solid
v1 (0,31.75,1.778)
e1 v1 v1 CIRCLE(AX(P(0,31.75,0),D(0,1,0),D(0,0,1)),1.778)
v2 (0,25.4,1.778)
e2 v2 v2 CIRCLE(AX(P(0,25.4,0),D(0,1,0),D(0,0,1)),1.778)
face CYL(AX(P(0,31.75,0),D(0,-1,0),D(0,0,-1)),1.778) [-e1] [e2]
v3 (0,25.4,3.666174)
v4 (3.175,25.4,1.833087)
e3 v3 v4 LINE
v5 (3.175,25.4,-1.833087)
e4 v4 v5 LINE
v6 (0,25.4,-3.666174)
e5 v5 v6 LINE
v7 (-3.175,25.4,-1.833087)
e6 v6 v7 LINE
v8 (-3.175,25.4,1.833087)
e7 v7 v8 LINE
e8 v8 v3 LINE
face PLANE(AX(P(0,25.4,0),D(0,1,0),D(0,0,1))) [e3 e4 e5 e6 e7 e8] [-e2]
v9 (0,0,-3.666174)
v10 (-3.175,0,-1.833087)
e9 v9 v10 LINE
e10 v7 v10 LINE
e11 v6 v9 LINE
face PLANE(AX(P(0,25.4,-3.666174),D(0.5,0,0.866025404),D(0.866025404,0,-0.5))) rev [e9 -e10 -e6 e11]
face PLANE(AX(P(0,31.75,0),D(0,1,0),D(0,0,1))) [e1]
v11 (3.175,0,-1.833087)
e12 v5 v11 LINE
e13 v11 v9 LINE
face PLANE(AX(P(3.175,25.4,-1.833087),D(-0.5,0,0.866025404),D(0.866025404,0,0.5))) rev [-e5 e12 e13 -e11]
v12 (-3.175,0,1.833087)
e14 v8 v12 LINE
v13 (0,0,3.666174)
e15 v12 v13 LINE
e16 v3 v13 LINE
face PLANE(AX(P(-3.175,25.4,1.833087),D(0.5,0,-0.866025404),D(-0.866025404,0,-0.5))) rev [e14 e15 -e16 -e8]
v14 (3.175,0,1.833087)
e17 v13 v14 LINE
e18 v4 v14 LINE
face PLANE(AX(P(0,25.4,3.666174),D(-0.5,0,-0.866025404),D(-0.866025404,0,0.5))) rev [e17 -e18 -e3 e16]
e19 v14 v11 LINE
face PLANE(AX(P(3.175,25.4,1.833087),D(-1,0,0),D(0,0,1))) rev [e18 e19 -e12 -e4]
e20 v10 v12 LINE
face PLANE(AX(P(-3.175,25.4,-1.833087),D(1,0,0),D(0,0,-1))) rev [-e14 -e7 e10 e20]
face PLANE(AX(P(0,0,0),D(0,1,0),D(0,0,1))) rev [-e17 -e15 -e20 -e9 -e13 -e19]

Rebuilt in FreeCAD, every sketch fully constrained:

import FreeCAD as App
import Part
import Sketcher

V = App.Vector
Q = App.Units.Quantity


def add_polygon(sketch, points):
    """Adds a closed chain of lines whose ends are joined by coincident constraints."""
    first, n = sketch.GeometryCount, len(points)
    for a, b in zip(points, points[1:] + points[:1]):
        sketch.addGeometry(Part.LineSegment(App.Vector(*a, 0), App.Vector(*b, 0)), False)
    for i in range(n):
        sketch.addConstraint(Sketcher.Constraint("Coincident", first + i, 2, first + (i + 1) % n, 1))

doc = App.newDocument("Part")
body = doc.addObject("PartDesign::Body", "Body")

# Sketch on XZ plane
sketch1 = body.newObject("Sketcher::SketchObject", "Sketch")
sketch1.AttachmentSupport = (doc.getObject("XZ_Plane"), [""])
sketch1.MapMode = "FlatFace"
add_polygon(sketch1, [(0, -3.7), (-3.2, -1.8), (-3.2, 1.8), (0, 3.7), (3.2, 1.8), (3.2, -1.8)])  # lines 0-5
sketch1.addConstraint([
    Sketcher.Constraint("Vertical", 1),
    Sketcher.Constraint("Vertical", 4),
    Sketcher.Constraint("Symmetric", 0, 2, 3, 2, -1, 1),
    Sketcher.Constraint("Symmetric", 2, 2, 5, 2, -1, 1),
    Sketcher.Constraint("PointOnObject", 2, 2, -2),
    Sketcher.Constraint("Parallel", 2, 5),
    Sketcher.Constraint("Horizontal", 1, 2, 3, 2),
    Sketcher.Constraint("Angle", 0, Q("150 deg")),
    Sketcher.Constraint("DistanceX", 1, 2, 3, 2, Q("0.25 in")),
    Sketcher.Constraint("DistanceY", 1, 1, 1, 2, Q("3.666174 mm")),
])
pad1 = body.newObject("PartDesign::Pad", "Pad")
pad1.Profile = sketch1
pad1.Length = Q("1 in")
pad1.Reversed = True

# Sketch on XZ plane
sketch2 = body.newObject("Sketcher::SketchObject", "Sketch001")
sketch2.AttachmentSupport = (doc.getObject("XZ_Plane"), [""])
sketch2.MapMode = "FlatFace"
sketch2.AttachmentOffset = App.Placement(V(0, 0, -1 * 25.4), App.Rotation())
sketch2.addGeometry(Part.Circle(V(0, 0, 0), V(0, 0, 1), 1.8), False)
sketch2.addConstraint([
    Sketcher.Constraint("Coincident", 0, 3, -1, 1),
    Sketcher.Constraint("Diameter", 0, Q("0.14 in")),
])
pad2 = body.newObject("PartDesign::Pad", "Pad001")
pad2.Profile = sketch2
pad2.Length = Q("0.25 in")
pad2.Reversed = True

doc.recompute()
